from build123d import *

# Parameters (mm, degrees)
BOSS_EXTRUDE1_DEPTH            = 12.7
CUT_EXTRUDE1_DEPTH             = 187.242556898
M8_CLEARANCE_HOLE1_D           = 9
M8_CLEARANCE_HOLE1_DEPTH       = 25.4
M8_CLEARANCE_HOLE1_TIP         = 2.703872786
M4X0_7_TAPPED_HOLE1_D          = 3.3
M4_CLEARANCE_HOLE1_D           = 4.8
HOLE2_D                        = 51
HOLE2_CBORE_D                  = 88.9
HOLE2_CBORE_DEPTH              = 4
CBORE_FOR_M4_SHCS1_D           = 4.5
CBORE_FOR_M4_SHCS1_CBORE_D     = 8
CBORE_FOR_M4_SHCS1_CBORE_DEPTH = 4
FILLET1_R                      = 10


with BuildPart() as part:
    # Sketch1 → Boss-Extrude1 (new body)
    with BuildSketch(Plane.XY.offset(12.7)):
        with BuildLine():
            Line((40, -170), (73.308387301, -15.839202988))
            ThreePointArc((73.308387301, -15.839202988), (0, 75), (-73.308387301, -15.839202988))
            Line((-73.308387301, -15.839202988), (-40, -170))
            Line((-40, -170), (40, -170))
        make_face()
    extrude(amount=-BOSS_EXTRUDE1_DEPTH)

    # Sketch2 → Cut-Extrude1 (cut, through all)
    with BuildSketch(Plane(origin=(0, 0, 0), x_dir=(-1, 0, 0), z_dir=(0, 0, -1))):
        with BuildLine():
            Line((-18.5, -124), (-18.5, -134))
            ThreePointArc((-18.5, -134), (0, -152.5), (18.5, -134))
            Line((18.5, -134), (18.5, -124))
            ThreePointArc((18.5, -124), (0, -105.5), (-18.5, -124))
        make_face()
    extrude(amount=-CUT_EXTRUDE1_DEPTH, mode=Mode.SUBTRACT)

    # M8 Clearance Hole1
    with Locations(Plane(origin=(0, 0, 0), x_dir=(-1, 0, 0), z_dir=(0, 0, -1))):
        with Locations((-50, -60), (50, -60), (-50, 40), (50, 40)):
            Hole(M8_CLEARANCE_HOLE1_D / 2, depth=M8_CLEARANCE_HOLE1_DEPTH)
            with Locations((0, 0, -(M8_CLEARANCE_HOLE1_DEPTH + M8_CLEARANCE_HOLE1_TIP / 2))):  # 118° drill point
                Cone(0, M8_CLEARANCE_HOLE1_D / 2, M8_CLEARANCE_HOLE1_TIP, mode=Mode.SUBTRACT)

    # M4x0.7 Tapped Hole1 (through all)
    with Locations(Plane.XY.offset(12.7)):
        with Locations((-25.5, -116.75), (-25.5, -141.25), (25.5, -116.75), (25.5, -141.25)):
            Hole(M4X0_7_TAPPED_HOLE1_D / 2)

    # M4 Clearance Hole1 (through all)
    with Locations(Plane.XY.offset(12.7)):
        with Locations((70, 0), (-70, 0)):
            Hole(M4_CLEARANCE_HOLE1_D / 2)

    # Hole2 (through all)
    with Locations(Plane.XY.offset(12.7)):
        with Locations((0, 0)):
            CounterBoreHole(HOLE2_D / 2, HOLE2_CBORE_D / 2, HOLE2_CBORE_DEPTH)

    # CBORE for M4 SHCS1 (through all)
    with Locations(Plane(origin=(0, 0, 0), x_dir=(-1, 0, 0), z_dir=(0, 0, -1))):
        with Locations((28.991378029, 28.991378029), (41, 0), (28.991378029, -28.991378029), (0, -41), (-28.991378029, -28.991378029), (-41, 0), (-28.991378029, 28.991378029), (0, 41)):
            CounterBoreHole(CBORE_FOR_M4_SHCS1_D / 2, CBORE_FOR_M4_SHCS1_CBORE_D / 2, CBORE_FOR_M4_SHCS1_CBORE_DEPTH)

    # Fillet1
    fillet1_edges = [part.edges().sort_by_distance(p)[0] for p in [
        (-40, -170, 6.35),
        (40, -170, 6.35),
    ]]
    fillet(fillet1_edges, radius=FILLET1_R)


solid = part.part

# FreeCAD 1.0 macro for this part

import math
import FreeCAD as App
import Part
import Sketcher

V = App.Vector
Q = App.Units.Quantity


def edges_at(feature, points):
    """Names of the edges that pass closest to the given points."""
    edges = feature.Shape.Edges
    near = lambda p: min(range(len(edges)), key=lambda i: edges[i].distToShape(Part.Vertex(*p))[0])
    return sorted({f"Edge{near(p) + 1}" for p in points})

doc = App.newDocument("Part")
params = doc.addObject("Spreadsheet::Sheet", "Params")
for row, (alias, value) in enumerate([
    ("sketch1_radius", "75 mm"),
    ("sketch1_width", "80 mm"),
    ("pad1_length", "12.7 mm"),
    ("sketch2_radius", "18.5 mm"),
    ("sketch2_height", "10 mm"),
    ("sketch3_diameter", "9 mm"),
    ("hole_diameter", "9 mm"),
    ("hole_depth", "25.4 mm"),
    ("sketch4_diameter", "3.3 mm"),
    ("hole2_diameter", "3.3 mm"),
    ("sketch5_diameter", "4.8 mm"),
    ("hole3_diameter", "4.8 mm"),
    ("sketch6_diameter", "51 mm"),
    ("hole4_diameter", "51 mm"),
    ("hole4_cbore_diameter", "88.9 mm"),
    ("hole4_cbore_depth", "4 mm"),
    ("sketch7_diameter", "4.5 mm"),
    ("hole5_diameter", "4.5 mm"),
    ("hole5_cbore_diameter", "8 mm"),
    ("hole5_cbore_depth", "4 mm"),
    ("fillet_radius", "10 mm"),
], start=1):
    params.set(f"A{row}", alias)
    params.set(f"B{row}", "=" + value)
    params.setAlias(f"B{row}", alias)

body = doc.addObject("PartDesign::Body", "Body")

sketch1 = doc.addObject("Sketcher::SketchObject", "Sketch")
body.addObject(sketch1)
sketch1.AttachmentSupport = (doc.XY_Plane, [""])
sketch1.MapMode = "FlatFace"
sketch1.AttachmentOffset = App.Placement(V(0, 0, 12.7), App.Rotation())
sketch1.addGeometry(Part.LineSegment(V(40, -170, 0), V(73, -16, 0)), False)
sketch1.addGeometry(Part.ArcOfCircle(Part.Circle(V(0, 0, 0), V(0, 0, 1), 75), math.radians(-12), math.radians(192)), False)
sketch1.addGeometry(Part.LineSegment(V(-73, -16, 0), V(-40, -170, 0)), False)
sketch1.addGeometry(Part.LineSegment(V(-40, -170, 0), V(40, -170, 0)), False)
sketch1.addConstraint(Sketcher.Constraint("Tangent", 0, 2, 1, 1))
sketch1.addConstraint(Sketcher.Constraint("Tangent", 1, 2, 2, 1))
sketch1.addConstraint(Sketcher.Constraint("Coincident", 2, 2, 3, 1))
sketch1.addConstraint(Sketcher.Constraint("Coincident", 3, 2, 0, 1))
sketch1.addConstraint(Sketcher.Constraint("Horizontal", 3))
sketch1.addConstraint(Sketcher.Constraint("Coincident", 1, 3, -1, 1))
sketch1.addConstraint(Sketcher.Constraint("Horizontal", 0, 2, 1, 2))
sketch1.addConstraint(Sketcher.Constraint("Radius", 1, Q("75 mm")))
sketch1.addConstraint(Sketcher.Constraint("DistanceX", 3, 1, 3, 2, Q("80 mm")))
sketch1.addConstraint(Sketcher.Constraint("DistanceY", 2, 2, -1, 1, Q("170 mm")))
sketch1.setExpression("Constraints[7]", "Params.sketch1_radius")
sketch1.setExpression("Constraints[8]", "Params.sketch1_width")
pad1 = doc.addObject("PartDesign::Pad", "Pad")
body.addObject(pad1)
pad1.Profile = sketch1
pad1.setExpression("Length", "Params.pad1_length")
pad1.Reversed = True

sketch2 = doc.addObject("Sketcher::SketchObject", "Sketch001")
body.addObject(sketch2)
sketch2.AttachmentSupport = (doc.XY_Plane, [""])
sketch2.MapMode = "FlatFace"
sketch2.addGeometry(Part.LineSegment(V(18, -124, 0), V(18, -134, 0)), False)
sketch2.addGeometry(Part.ArcOfCircle(Part.Circle(V(0, -134, 0), V(0, 0, 1), 18), math.radians(180), math.radians(360)), False)
sketch2.addGeometry(Part.LineSegment(V(-18, -134, 0), V(-18, -124, 0)), False)
sketch2.addGeometry(Part.ArcOfCircle(Part.Circle(V(0, -124, 0), V(0, 0, 1), 18), math.radians(0), math.radians(180)), False)
sketch2.addConstraint(Sketcher.Constraint("Tangent", 0, 2, 1, 2))
sketch2.addConstraint(Sketcher.Constraint("Tangent", 1, 1, 2, 1))
sketch2.addConstraint(Sketcher.Constraint("Tangent", 2, 2, 3, 2))
sketch2.addConstraint(Sketcher.Constraint("Tangent", 3, 1, 0, 1))
sketch2.addConstraint(Sketcher.Constraint("Vertical", 0))
sketch2.addConstraint(Sketcher.Constraint("Vertical", 2))
sketch2.addConstraint(Sketcher.Constraint("PointOnObject", 1, 3, -2))
sketch2.addConstraint(Sketcher.Constraint("Radius", 1, Q("18.5 mm")))
sketch2.addConstraint(Sketcher.Constraint("DistanceY", 0, 2, 0, 1, Q("10 mm")))
sketch2.addConstraint(Sketcher.Constraint("DistanceY", 1, 3, -1, 1, Q("134 mm")))
sketch2.setExpression("Constraints[7]", "Params.sketch2_radius")
sketch2.setExpression("Constraints[8]", "Params.sketch2_height")
pocket1 = doc.addObject("PartDesign::Pocket", "Pocket")
body.addObject(pocket1)
pocket1.Profile = sketch2
pocket1.Type = "ThroughAll"
pocket1.Reversed = True

sketch3 = doc.addObject("Sketcher::SketchObject", "Sketch002")
body.addObject(sketch3)
sketch3.AttachmentSupport = (doc.XY_Plane, [""])
sketch3.MapMode = "FlatFace"
sketch3.addGeometry(Part.Circle(V(50, -60, 0), V(0, 0, 1), 4.5), False)
sketch3.addGeometry(Part.Circle(V(-50, -60, 0), V(0, 0, 1), 4.5), False)
sketch3.addGeometry(Part.Circle(V(50, 40, 0), V(0, 0, 1), 4.5), False)
sketch3.addGeometry(Part.Circle(V(-50, 40, 0), V(0, 0, 1), 4.5), False)
sketch3.addConstraint(Sketcher.Constraint("Equal", 0, 1))
sketch3.addConstraint(Sketcher.Constraint("Equal", 1, 2))
sketch3.addConstraint(Sketcher.Constraint("Equal", 2, 3))
sketch3.addConstraint(Sketcher.Constraint("Symmetric", 0, 3, 1, 3, -2))
sketch3.addConstraint(Sketcher.Constraint("Symmetric", 2, 3, 3, 3, -2))
sketch3.addConstraint(Sketcher.Constraint("Vertical", 0, 3, 2, 3))
sketch3.addConstraint(Sketcher.Constraint("Diameter", 0, Q("9 mm")))
sketch3.addConstraint(Sketcher.Constraint("DistanceX", -1, 1, 0, 3, Q("50 mm")))
sketch3.addConstraint(Sketcher.Constraint("DistanceY", 0, 3, -1, 1, Q("60 mm")))
sketch3.addConstraint(Sketcher.Constraint("DistanceY", -1, 1, 2, 3, Q("40 mm")))
sketch3.setExpression("Constraints[6]", "Params.sketch3_diameter")
doc.recompute()
hole = doc.addObject("PartDesign::Hole", "Hole")
body.addObject(hole)
hole.Profile = sketch3
hole.ThreadType = "None"
hole.setExpression("Diameter", "Params.hole_diameter")
hole.DepthType = "Dimension"
hole.setExpression("Depth", "Params.hole_depth")
hole.DrillPoint = "Angled"
hole.DrillPointAngle = 118
hole.Reversed = True

sketch4 = doc.addObject("Sketcher::SketchObject", "Sketch003")
body.addObject(sketch4)
sketch4.AttachmentSupport = (doc.XY_Plane, [""])
sketch4.MapMode = "FlatFace"
sketch4.AttachmentOffset = App.Placement(V(0, 0, 12.7), App.Rotation())
sketch4.addGeometry(Part.Circle(V(-25.5, -116.8, 0), V(0, 0, 1), 1.6), False)
sketch4.addGeometry(Part.Circle(V(-25.5, -141.2, 0), V(0, 0, 1), 1.6), False)
sketch4.addGeometry(Part.Circle(V(25.5, -116.8, 0), V(0, 0, 1), 1.6), False)
sketch4.addGeometry(Part.Circle(V(25.5, -141.2, 0), V(0, 0, 1), 1.6), False)
sketch4.addConstraint(Sketcher.Constraint("Equal", 0, 1))
sketch4.addConstraint(Sketcher.Constraint("Equal", 1, 2))
sketch4.addConstraint(Sketcher.Constraint("Equal", 2, 3))
sketch4.addConstraint(Sketcher.Constraint("Symmetric", 0, 3, 2, 3, -2))
sketch4.addConstraint(Sketcher.Constraint("Symmetric", 1, 3, 3, 3, -2))
sketch4.addConstraint(Sketcher.Constraint("Vertical", 0, 3, 1, 3))
sketch4.addConstraint(Sketcher.Constraint("Diameter", 0, Q("3.3 mm")))
sketch4.addConstraint(Sketcher.Constraint("DistanceX", 0, 3, 2, 3, Q("51 mm")))
sketch4.addConstraint(Sketcher.Constraint("DistanceY", 1, 3, 0, 3, Q("24.5 mm")))
sketch4.addConstraint(Sketcher.Constraint("DistanceY", 0, 3, -1, 1, Q("116.75 mm")))
sketch4.setExpression("Constraints[6]", "Params.sketch4_diameter")
doc.recompute()
hole2 = doc.addObject("PartDesign::Hole", "Hole001")
body.addObject(hole2)
hole2.Profile = sketch4
hole2.ThreadType = "None"
hole2.setExpression("Diameter", "Params.hole2_diameter")
hole2.DepthType = "ThroughAll"

sketch5 = doc.addObject("Sketcher::SketchObject", "Sketch004")
body.addObject(sketch5)
sketch5.AttachmentSupport = (doc.XY_Plane, [""])
sketch5.MapMode = "FlatFace"
sketch5.AttachmentOffset = App.Placement(V(0, 0, 12.7), App.Rotation())
sketch5.addGeometry(Part.Circle(V(70, 0, 0), V(0, 0, 1), 2.4), False)
sketch5.addGeometry(Part.Circle(V(-70, 0, 0), V(0, 0, 1), 2.4), False)
sketch5.addConstraint(Sketcher.Constraint("Equal", 0, 1))
sketch5.addConstraint(Sketcher.Constraint("Symmetric", 0, 3, 1, 3, -1, 1))
sketch5.addConstraint(Sketcher.Constraint("PointOnObject", 0, 3, -1))
sketch5.addConstraint(Sketcher.Constraint("Diameter", 0, Q("4.8 mm")))
sketch5.addConstraint(Sketcher.Constraint("DistanceX", -1, 1, 0, 3, Q("70 mm")))
sketch5.setExpression("Constraints[3]", "Params.sketch5_diameter")
doc.recompute()
hole3 = doc.addObject("PartDesign::Hole", "Hole002")
body.addObject(hole3)
hole3.Profile = sketch5
hole3.ThreadType = "None"
hole3.setExpression("Diameter", "Params.hole3_diameter")
hole3.DepthType = "ThroughAll"

sketch6 = doc.addObject("Sketcher::SketchObject", "Sketch005")
body.addObject(sketch6)
sketch6.AttachmentSupport = (doc.XY_Plane, [""])
sketch6.MapMode = "FlatFace"
sketch6.AttachmentOffset = App.Placement(V(0, 0, 12.7), App.Rotation())
sketch6.addGeometry(Part.Circle(V(0, 0, 0), V(0, 0, 1), 26), False)
sketch6.addConstraint(Sketcher.Constraint("Coincident", 0, 3, -1, 1))
sketch6.addConstraint(Sketcher.Constraint("Diameter", 0, Q("51 mm")))
sketch6.setExpression("Constraints[1]", "Params.sketch6_diameter")
doc.recompute()
hole4 = doc.addObject("PartDesign::Hole", "Hole003")
body.addObject(hole4)
hole4.Profile = sketch6
hole4.ThreadType = "None"
hole4.setExpression("Diameter", "Params.hole4_diameter")
hole4.DepthType = "ThroughAll"
hole4.HoleCutType = "Counterbore"
hole4.setExpression("HoleCutDiameter", "Params.hole4_cbore_diameter")
hole4.setExpression("HoleCutDepth", "Params.hole4_cbore_depth")

sketch7 = doc.addObject("Sketcher::SketchObject", "Sketch006")
body.addObject(sketch7)
sketch7.AttachmentSupport = (doc.XY_Plane, [""])
sketch7.MapMode = "FlatFace"
sketch7.addGeometry(Part.Circle(V(-29, 29, 0), V(0, 0, 1), 2.2), False)
sketch7.addGeometry(Part.Circle(V(-41, 0, 0), V(0, 0, 1), 2.2), False)
sketch7.addGeometry(Part.Circle(V(-29, -29, 0), V(0, 0, 1), 2.2), False)
sketch7.addGeometry(Part.Circle(V(0, -41, 0), V(0, 0, 1), 2.2), False)
sketch7.addGeometry(Part.Circle(V(29, -29, 0), V(0, 0, 1), 2.2), False)
sketch7.addGeometry(Part.Circle(V(41, 0, 0), V(0, 0, 1), 2.2), False)
sketch7.addGeometry(Part.Circle(V(29, 29, 0), V(0, 0, 1), 2.2), False)
sketch7.addGeometry(Part.Circle(V(0, 41, 0), V(0, 0, 1), 2.2), False)
sketch7.addConstraint(Sketcher.Constraint("Equal", 0, 1))
sketch7.addConstraint(Sketcher.Constraint("Equal", 1, 2))
sketch7.addConstraint(Sketcher.Constraint("Equal", 2, 3))
sketch7.addConstraint(Sketcher.Constraint("Equal", 3, 4))
sketch7.addConstraint(Sketcher.Constraint("Equal", 4, 5))
sketch7.addConstraint(Sketcher.Constraint("Equal", 5, 6))
sketch7.addConstraint(Sketcher.Constraint("Equal", 6, 7))
sketch7.addConstraint(Sketcher.Constraint("Symmetric", 0, 3, 4, 3, -1, 1))
sketch7.addConstraint(Sketcher.Constraint("Symmetric", 1, 3, 5, 3, -1, 1))
sketch7.addConstraint(Sketcher.Constraint("Symmetric", 2, 3, 6, 3, -1, 1))
sketch7.addConstraint(Sketcher.Constraint("Symmetric", 3, 3, 7, 3, -1, 1))
sketch7.addConstraint(Sketcher.Constraint("Symmetric", 2, 3, 4, 3, -2))
sketch7.addConstraint(Sketcher.Constraint("PointOnObject", 1, 3, -1))
sketch7.addConstraint(Sketcher.Constraint("PointOnObject", 3, 3, -2))
sketch7.addConstraint(Sketcher.Constraint("Diameter", 0, Q("4.5 mm")))
sketch7.addConstraint(Sketcher.Constraint("DistanceX", 1, 3, -1, 1, Q("41 mm")))
sketch7.addConstraint(Sketcher.Constraint("DistanceY", 3, 3, -1, 1, Q("41 mm")))
sketch7.addConstraint(Sketcher.Constraint("DistanceX", 0, 3, -1, 1, Q("28.991378 mm")))
sketch7.addConstraint(Sketcher.Constraint("DistanceY", -1, 1, 0, 3, Q("28.991378 mm")))
sketch7.setExpression("Constraints[14]", "Params.sketch7_diameter")
doc.recompute()
hole5 = doc.addObject("PartDesign::Hole", "Hole004")
body.addObject(hole5)
hole5.Profile = sketch7
hole5.ThreadType = "None"
hole5.setExpression("Diameter", "Params.hole5_diameter")
hole5.DepthType = "ThroughAll"
hole5.HoleCutType = "Counterbore"
hole5.setExpression("HoleCutDiameter", "Params.hole5_cbore_diameter")
hole5.setExpression("HoleCutDepth", "Params.hole5_cbore_depth")
hole5.Reversed = True
doc.recompute()

fillet = doc.addObject("PartDesign::Fillet", "Fillet")
body.addObject(fillet)
fillet.Base = (hole5, edges_at(hole5, [(-40, -170, 6.35), (40, -170, 6.35)]))
fillet.setExpression("Radius", "Params.fillet_radius")

doc.recompute()
